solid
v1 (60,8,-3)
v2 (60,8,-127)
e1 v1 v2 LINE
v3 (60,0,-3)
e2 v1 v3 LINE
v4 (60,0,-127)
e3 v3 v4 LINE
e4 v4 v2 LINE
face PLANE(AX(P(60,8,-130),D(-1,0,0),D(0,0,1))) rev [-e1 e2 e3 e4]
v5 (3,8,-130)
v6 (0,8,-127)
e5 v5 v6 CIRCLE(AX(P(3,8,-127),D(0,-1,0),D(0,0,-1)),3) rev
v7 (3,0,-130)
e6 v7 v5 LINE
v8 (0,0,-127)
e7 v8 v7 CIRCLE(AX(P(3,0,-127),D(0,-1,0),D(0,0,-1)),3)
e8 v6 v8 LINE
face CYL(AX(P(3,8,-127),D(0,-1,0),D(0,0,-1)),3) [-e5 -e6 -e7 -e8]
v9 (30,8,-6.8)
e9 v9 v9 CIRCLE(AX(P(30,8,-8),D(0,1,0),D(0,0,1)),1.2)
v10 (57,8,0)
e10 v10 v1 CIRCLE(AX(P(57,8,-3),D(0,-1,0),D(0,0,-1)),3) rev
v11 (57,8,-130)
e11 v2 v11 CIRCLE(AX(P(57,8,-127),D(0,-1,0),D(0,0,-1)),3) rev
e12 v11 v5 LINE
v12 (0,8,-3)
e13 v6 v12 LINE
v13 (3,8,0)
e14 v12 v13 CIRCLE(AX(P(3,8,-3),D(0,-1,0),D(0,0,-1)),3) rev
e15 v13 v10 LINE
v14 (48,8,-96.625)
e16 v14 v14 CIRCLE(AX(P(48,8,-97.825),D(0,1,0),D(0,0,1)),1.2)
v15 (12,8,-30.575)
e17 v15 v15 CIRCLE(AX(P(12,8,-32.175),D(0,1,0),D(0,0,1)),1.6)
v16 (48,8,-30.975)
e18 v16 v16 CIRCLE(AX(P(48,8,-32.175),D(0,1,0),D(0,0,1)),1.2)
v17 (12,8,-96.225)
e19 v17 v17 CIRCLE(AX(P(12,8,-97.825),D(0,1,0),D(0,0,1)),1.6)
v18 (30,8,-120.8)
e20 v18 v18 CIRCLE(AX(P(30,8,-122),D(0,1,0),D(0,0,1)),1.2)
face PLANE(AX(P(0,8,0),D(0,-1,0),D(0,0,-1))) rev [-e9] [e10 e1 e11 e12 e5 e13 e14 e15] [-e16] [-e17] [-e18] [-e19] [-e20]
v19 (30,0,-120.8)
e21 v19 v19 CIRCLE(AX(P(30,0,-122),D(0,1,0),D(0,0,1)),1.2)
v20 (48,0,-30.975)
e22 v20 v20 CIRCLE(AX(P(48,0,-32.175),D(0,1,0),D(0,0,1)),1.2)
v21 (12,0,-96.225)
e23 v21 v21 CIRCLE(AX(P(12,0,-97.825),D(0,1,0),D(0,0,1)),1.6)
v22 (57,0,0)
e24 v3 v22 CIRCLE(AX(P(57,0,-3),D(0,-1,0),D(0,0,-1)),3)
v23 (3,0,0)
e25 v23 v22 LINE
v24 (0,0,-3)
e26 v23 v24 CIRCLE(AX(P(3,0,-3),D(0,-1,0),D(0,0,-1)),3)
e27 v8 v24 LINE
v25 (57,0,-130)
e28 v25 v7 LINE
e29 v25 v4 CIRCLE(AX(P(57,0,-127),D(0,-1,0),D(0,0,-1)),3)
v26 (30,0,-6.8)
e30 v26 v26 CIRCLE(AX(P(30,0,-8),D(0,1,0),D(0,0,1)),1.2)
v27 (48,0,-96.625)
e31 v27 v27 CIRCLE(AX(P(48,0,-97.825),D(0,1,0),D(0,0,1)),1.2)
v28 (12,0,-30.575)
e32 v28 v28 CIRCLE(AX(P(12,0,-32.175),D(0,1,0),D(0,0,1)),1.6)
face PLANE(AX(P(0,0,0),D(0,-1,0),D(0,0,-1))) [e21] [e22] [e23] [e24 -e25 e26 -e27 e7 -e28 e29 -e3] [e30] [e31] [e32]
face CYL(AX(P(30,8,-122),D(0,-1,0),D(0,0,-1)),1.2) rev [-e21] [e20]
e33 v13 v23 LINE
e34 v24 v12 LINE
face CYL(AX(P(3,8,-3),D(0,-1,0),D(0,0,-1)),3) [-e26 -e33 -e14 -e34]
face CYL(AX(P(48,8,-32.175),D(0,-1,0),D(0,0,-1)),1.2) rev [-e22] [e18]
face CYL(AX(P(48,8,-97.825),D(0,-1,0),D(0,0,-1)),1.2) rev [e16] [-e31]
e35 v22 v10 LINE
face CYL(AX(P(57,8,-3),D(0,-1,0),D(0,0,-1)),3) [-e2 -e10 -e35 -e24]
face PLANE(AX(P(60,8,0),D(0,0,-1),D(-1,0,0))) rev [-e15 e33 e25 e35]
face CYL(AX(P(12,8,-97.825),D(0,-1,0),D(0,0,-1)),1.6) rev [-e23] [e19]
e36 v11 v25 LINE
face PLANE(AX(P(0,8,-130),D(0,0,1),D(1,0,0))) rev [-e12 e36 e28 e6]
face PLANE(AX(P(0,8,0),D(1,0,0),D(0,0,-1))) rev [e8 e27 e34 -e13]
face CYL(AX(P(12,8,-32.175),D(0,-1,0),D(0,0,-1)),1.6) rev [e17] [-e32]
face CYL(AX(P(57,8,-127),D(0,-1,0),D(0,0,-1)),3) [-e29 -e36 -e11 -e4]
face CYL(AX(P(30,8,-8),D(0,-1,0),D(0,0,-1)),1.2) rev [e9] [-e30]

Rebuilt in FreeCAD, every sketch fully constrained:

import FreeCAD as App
import Part
import Sketcher

V = App.Vector


def edges_at(feature, points):
    """Names of the edges that pass closest to the given points."""
    edges = feature.Shape.Edges
    near = lambda p: min(range(len(edges)), key=lambda i: edges[i].distToShape(Part.Vertex(*p))[0])
    return sorted({f"Edge{near(p) + 1}" for p in points})

doc = App.newDocument("Part")
body = doc.addObject("PartDesign::Body", "Body")

# Sketch on XZ plane
sketch1 = body.newObject("Sketcher::SketchObject", "Sketch")
sketch1.AttachmentSupport = (doc.getObject("XZ_Plane"), [""])
sketch1.MapMode = "FlatFace"
sketch1.addGeometry([
    Part.LineSegment(V(0, -130, 0), V(0, 0, 0)),  # 0
    Part.LineSegment(V(0, 0, 0), V(60, 0, 0)),  # 1
    Part.LineSegment(V(60, 0, 0), V(60, -130, 0)),  # 2
    Part.LineSegment(V(60, -130, 0), V(0, -130, 0)),  # 3
    Part.Circle(V(12, -32.2, 0), V(0, 0, 1), 1.6),  # 4
    Part.Circle(V(30, -8, 0), V(0, 0, 1), 1.2),  # 5
    Part.Circle(V(48, -32.2, 0), V(0, 0, 1), 1.2),  # 6
    Part.Circle(V(12, -97.8, 0), V(0, 0, 1), 1.6),  # 7
    Part.Circle(V(30, -122, 0), V(0, 0, 1), 1.2),  # 8
    Part.Circle(V(48, -97.8, 0), V(0, 0, 1), 1.2),  # 9
], False)
sketch1.addConstraint([
    Sketcher.Constraint("Coincident", 0, 2, 1, 1),
    Sketcher.Constraint("Coincident", 1, 2, 2, 1),
    Sketcher.Constraint("Coincident", 2, 2, 3, 1),
    Sketcher.Constraint("Coincident", 3, 2, 0, 1),
    Sketcher.Constraint("Vertical", 0),
    Sketcher.Constraint("Horizontal", 1),
    Sketcher.Constraint("Vertical", 2),
    Sketcher.Constraint("Horizontal", 3),
    Sketcher.Constraint("Coincident", 0, 2, -1, 1),
    Sketcher.Constraint("Equal", 5, 6),
    Sketcher.Constraint("Equal", 4, 7),
    Sketcher.Constraint("Equal", 6, 8),
    Sketcher.Constraint("Equal", 8, 9),
    Sketcher.Constraint("Horizontal", 4, 3, 6, 3),
    Sketcher.Constraint("Horizontal", 7, 3, 9, 3),
    Sketcher.Constraint("Vertical", 4, 3, 7, 3),
    Sketcher.Constraint("Vertical", 5, 3, 8, 3),
    Sketcher.Constraint("Vertical", 6, 3, 9, 3),
    Sketcher.Constraint("Diameter", 4, 3.2),
    Sketcher.Constraint("Diameter", 5, 2.4),
    Sketcher.Constraint("DistanceX", 1, 1, 1, 2, 60.0),
    Sketcher.Constraint("DistanceY", 0, 1, 0, 2, 130.0),
    Sketcher.Constraint("DistanceX", -1, 1, 4, 3, 12.0),
    Sketcher.Constraint("DistanceX", -1, 1, 5, 3, 30.0),
    Sketcher.Constraint("DistanceY", 5, 3, -1, 1, 8.0),
    Sketcher.Constraint("DistanceX", -1, 1, 6, 3, 48.0),
    Sketcher.Constraint("DistanceY", 8, 3, -1, 1, 122.0),
    Sketcher.Constraint("DistanceY", 7, 3, 4, 3, 65.65),
    Sketcher.Constraint("DistanceY", 4, 3, -1, 1, 32.175),
])
pad1 = body.newObject("PartDesign::Pad", "Pad")
pad1.Profile = sketch1
pad1.Length = 8
pad1.Reversed = True
doc.recompute()

fillet = body.newObject("PartDesign::Fillet", "Fillet")
fillet.Base = (pad1, edges_at(pad1, [
    (0, 4, 0),
    (0, 4, -130),
    (60, 4, -130),
    (60, 4, 0),
]))
fillet.Radius = 3

doc.recompute()
